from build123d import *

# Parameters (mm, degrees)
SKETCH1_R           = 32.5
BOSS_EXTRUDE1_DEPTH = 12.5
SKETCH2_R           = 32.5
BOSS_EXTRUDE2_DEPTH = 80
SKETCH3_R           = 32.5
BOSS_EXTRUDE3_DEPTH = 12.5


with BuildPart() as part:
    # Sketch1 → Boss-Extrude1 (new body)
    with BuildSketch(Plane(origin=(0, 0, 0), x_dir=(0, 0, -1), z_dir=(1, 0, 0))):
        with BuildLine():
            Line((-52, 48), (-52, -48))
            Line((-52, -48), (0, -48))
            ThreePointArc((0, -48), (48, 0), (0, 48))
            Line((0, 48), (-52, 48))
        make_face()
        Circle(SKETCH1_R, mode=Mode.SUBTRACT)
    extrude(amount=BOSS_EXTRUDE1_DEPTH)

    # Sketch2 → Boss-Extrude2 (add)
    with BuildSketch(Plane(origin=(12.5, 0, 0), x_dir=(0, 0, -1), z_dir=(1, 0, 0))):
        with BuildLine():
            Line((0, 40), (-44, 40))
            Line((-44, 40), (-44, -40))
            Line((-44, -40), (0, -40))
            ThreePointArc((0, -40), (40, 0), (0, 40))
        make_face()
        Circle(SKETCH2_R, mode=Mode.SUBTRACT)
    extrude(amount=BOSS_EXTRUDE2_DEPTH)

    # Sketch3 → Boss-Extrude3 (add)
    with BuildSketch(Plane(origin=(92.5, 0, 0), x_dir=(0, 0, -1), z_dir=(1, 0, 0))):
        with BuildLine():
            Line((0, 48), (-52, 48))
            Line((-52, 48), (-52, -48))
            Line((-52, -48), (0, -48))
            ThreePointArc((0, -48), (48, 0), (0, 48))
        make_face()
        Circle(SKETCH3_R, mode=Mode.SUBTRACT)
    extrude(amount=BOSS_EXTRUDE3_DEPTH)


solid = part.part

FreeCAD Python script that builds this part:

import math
import FreeCAD as App
import Part
import Sketcher

V = App.Vector
Q = App.Units.Quantity

doc = App.newDocument("Part")
body = doc.addObject("PartDesign::Body", "Body")

sketch1 = body.newObject("Sketcher::SketchObject", "Sketch")
sketch1.AttachmentSupport = (doc.getObject("YZ_Plane"), [""])
sketch1.MapMode = "FlatFace"
sketch1.addGeometry(Part.LineSegment(V(48, 52, 0), V(-48, 52, 0)), False)
sketch1.addGeometry(Part.LineSegment(V(-48, 52, 0), V(-48, 0, 0)), False)
sketch1.addGeometry(Part.ArcOfCircle(Part.Circle(V(0, 0, 0), V(0, 0, 1), 48), math.radians(180), math.radians(360)), False)
sketch1.addGeometry(Part.LineSegment(V(48, 0, 0), V(48, 52, 0)), False)
sketch1.addGeometry(Part.Circle(V(0, 0, 0), V(0, 0, 1), 32.5), False)
sketch1.addConstraint(Sketcher.Constraint("Coincident", 0, 2, 1, 1))
sketch1.addConstraint(Sketcher.Constraint("Tangent", 1, 2, 2, 1))
sketch1.addConstraint(Sketcher.Constraint("Tangent", 2, 2, 3, 1))
sketch1.addConstraint(Sketcher.Constraint("Coincident", 3, 2, 0, 1))
sketch1.addConstraint(Sketcher.Constraint("Horizontal", 0))
sketch1.addConstraint(Sketcher.Constraint("Vertical", 1))
sketch1.addConstraint(Sketcher.Constraint("Vertical", 3))
sketch1.addConstraint(Sketcher.Constraint("Coincident", 2, 3, -1, 1))
sketch1.addConstraint(Sketcher.Constraint("Coincident", 4, 3, -1, 1))
sketch1.addConstraint(Sketcher.Constraint("Diameter", 4, Q("65 mm")))
sketch1.addConstraint(Sketcher.Constraint("Radius", 2, Q("48 mm")))
sketch1.addConstraint(Sketcher.Constraint("DistanceY", 1, 2, 1, 1, Q("52 mm")))
pad1 = body.newObject("PartDesign::Pad", "Pad")
pad1.Profile = sketch1
pad1.Length = 12.5

sketch2 = body.newObject("Sketcher::SketchObject", "Sketch001")
sketch2.AttachmentSupport = (doc.getObject("YZ_Plane"), [""])
sketch2.MapMode = "FlatFace"
sketch2.AttachmentOffset = App.Placement(V(0, 0, 12.5), App.Rotation())
sketch2.addGeometry(Part.LineSegment(V(40, 0, 0), V(40, 44, 0)), False)
sketch2.addGeometry(Part.LineSegment(V(40, 44, 0), V(-40, 44, 0)), False)
sketch2.addGeometry(Part.LineSegment(V(-40, 44, 0), V(-40, 0, 0)), False)
sketch2.addGeometry(Part.ArcOfCircle(Part.Circle(V(0, 0, 0), V(0, 0, 1), 40), math.radians(180), math.radians(360)), False)
sketch2.addGeometry(Part.Circle(V(0, 0, 0), V(0, 0, 1), 32.5), False)
sketch2.addConstraint(Sketcher.Constraint("Coincident", 0, 2, 1, 1))
sketch2.addConstraint(Sketcher.Constraint("Coincident", 1, 2, 2, 1))
sketch2.addConstraint(Sketcher.Constraint("Tangent", 2, 2, 3, 1))
sketch2.addConstraint(Sketcher.Constraint("Tangent", 3, 2, 0, 1))
sketch2.addConstraint(Sketcher.Constraint("Vertical", 0))
sketch2.addConstraint(Sketcher.Constraint("Horizontal", 1))
sketch2.addConstraint(Sketcher.Constraint("Vertical", 2))
sketch2.addConstraint(Sketcher.Constraint("Coincident", 3, 3, -1, 1))
sketch2.addConstraint(Sketcher.Constraint("Coincident", 4, 3, -1, 1))
sketch2.addConstraint(Sketcher.Constraint("Diameter", 4, Q("65 mm")))
sketch2.addConstraint(Sketcher.Constraint("Radius", 3, Q("40 mm")))
sketch2.addConstraint(Sketcher.Constraint("DistanceY", 0, 1, 0, 2, Q("44 mm")))
pad2 = body.newObject("PartDesign::Pad", "Pad001")
pad2.Profile = sketch2
pad2.Length = 80

sketch3 = body.newObject("Sketcher::SketchObject", "Sketch002")
sketch3.AttachmentSupport = (doc.getObject("YZ_Plane"), [""])
sketch3.MapMode = "FlatFace"
sketch3.AttachmentOffset = App.Placement(V(0, 0, 92.5), App.Rotation())
sketch3.addGeometry(Part.LineSegment(V(48, 0, 0), V(48, 52, 0)), False)
sketch3.addGeometry(Part.LineSegment(V(48, 52, 0), V(-48, 52, 0)), False)
sketch3.addGeometry(Part.LineSegment(V(-48, 52, 0), V(-48, 0, 0)), False)
sketch3.addGeometry(Part.ArcOfCircle(Part.Circle(V(0, 0, 0), V(0, 0, 1), 48), math.radians(180), math.radians(360)), False)
sketch3.addGeometry(Part.Circle(V(0, 0, 0), V(0, 0, 1), 32.5), False)
sketch3.addConstraint(Sketcher.Constraint("Coincident", 0, 2, 1, 1))
sketch3.addConstraint(Sketcher.Constraint("Coincident", 1, 2, 2, 1))
sketch3.addConstraint(Sketcher.Constraint("Tangent", 2, 2, 3, 1))
sketch3.addConstraint(Sketcher.Constraint("Tangent", 3, 2, 0, 1))
sketch3.addConstraint(Sketcher.Constraint("Vertical", 0))
sketch3.addConstraint(Sketcher.Constraint("Horizontal", 1))
sketch3.addConstraint(Sketcher.Constraint("Vertical", 2))
sketch3.addConstraint(Sketcher.Constraint("Coincident", 3, 3, -1, 1))
sketch3.addConstraint(Sketcher.Constraint("Coincident", 4, 3, -1, 1))
sketch3.addConstraint(Sketcher.Constraint("Diameter", 4, Q("65 mm")))
sketch3.addConstraint(Sketcher.Constraint("Radius", 3, Q("48 mm")))
sketch3.addConstraint(Sketcher.Constraint("DistanceY", 0, 1, 0, 2, Q("52 mm")))
pad3 = body.newObject("PartDesign::Pad", "Pad002")
pad3.Profile = sketch3
pad3.Length = 12.5

doc.recompute()
